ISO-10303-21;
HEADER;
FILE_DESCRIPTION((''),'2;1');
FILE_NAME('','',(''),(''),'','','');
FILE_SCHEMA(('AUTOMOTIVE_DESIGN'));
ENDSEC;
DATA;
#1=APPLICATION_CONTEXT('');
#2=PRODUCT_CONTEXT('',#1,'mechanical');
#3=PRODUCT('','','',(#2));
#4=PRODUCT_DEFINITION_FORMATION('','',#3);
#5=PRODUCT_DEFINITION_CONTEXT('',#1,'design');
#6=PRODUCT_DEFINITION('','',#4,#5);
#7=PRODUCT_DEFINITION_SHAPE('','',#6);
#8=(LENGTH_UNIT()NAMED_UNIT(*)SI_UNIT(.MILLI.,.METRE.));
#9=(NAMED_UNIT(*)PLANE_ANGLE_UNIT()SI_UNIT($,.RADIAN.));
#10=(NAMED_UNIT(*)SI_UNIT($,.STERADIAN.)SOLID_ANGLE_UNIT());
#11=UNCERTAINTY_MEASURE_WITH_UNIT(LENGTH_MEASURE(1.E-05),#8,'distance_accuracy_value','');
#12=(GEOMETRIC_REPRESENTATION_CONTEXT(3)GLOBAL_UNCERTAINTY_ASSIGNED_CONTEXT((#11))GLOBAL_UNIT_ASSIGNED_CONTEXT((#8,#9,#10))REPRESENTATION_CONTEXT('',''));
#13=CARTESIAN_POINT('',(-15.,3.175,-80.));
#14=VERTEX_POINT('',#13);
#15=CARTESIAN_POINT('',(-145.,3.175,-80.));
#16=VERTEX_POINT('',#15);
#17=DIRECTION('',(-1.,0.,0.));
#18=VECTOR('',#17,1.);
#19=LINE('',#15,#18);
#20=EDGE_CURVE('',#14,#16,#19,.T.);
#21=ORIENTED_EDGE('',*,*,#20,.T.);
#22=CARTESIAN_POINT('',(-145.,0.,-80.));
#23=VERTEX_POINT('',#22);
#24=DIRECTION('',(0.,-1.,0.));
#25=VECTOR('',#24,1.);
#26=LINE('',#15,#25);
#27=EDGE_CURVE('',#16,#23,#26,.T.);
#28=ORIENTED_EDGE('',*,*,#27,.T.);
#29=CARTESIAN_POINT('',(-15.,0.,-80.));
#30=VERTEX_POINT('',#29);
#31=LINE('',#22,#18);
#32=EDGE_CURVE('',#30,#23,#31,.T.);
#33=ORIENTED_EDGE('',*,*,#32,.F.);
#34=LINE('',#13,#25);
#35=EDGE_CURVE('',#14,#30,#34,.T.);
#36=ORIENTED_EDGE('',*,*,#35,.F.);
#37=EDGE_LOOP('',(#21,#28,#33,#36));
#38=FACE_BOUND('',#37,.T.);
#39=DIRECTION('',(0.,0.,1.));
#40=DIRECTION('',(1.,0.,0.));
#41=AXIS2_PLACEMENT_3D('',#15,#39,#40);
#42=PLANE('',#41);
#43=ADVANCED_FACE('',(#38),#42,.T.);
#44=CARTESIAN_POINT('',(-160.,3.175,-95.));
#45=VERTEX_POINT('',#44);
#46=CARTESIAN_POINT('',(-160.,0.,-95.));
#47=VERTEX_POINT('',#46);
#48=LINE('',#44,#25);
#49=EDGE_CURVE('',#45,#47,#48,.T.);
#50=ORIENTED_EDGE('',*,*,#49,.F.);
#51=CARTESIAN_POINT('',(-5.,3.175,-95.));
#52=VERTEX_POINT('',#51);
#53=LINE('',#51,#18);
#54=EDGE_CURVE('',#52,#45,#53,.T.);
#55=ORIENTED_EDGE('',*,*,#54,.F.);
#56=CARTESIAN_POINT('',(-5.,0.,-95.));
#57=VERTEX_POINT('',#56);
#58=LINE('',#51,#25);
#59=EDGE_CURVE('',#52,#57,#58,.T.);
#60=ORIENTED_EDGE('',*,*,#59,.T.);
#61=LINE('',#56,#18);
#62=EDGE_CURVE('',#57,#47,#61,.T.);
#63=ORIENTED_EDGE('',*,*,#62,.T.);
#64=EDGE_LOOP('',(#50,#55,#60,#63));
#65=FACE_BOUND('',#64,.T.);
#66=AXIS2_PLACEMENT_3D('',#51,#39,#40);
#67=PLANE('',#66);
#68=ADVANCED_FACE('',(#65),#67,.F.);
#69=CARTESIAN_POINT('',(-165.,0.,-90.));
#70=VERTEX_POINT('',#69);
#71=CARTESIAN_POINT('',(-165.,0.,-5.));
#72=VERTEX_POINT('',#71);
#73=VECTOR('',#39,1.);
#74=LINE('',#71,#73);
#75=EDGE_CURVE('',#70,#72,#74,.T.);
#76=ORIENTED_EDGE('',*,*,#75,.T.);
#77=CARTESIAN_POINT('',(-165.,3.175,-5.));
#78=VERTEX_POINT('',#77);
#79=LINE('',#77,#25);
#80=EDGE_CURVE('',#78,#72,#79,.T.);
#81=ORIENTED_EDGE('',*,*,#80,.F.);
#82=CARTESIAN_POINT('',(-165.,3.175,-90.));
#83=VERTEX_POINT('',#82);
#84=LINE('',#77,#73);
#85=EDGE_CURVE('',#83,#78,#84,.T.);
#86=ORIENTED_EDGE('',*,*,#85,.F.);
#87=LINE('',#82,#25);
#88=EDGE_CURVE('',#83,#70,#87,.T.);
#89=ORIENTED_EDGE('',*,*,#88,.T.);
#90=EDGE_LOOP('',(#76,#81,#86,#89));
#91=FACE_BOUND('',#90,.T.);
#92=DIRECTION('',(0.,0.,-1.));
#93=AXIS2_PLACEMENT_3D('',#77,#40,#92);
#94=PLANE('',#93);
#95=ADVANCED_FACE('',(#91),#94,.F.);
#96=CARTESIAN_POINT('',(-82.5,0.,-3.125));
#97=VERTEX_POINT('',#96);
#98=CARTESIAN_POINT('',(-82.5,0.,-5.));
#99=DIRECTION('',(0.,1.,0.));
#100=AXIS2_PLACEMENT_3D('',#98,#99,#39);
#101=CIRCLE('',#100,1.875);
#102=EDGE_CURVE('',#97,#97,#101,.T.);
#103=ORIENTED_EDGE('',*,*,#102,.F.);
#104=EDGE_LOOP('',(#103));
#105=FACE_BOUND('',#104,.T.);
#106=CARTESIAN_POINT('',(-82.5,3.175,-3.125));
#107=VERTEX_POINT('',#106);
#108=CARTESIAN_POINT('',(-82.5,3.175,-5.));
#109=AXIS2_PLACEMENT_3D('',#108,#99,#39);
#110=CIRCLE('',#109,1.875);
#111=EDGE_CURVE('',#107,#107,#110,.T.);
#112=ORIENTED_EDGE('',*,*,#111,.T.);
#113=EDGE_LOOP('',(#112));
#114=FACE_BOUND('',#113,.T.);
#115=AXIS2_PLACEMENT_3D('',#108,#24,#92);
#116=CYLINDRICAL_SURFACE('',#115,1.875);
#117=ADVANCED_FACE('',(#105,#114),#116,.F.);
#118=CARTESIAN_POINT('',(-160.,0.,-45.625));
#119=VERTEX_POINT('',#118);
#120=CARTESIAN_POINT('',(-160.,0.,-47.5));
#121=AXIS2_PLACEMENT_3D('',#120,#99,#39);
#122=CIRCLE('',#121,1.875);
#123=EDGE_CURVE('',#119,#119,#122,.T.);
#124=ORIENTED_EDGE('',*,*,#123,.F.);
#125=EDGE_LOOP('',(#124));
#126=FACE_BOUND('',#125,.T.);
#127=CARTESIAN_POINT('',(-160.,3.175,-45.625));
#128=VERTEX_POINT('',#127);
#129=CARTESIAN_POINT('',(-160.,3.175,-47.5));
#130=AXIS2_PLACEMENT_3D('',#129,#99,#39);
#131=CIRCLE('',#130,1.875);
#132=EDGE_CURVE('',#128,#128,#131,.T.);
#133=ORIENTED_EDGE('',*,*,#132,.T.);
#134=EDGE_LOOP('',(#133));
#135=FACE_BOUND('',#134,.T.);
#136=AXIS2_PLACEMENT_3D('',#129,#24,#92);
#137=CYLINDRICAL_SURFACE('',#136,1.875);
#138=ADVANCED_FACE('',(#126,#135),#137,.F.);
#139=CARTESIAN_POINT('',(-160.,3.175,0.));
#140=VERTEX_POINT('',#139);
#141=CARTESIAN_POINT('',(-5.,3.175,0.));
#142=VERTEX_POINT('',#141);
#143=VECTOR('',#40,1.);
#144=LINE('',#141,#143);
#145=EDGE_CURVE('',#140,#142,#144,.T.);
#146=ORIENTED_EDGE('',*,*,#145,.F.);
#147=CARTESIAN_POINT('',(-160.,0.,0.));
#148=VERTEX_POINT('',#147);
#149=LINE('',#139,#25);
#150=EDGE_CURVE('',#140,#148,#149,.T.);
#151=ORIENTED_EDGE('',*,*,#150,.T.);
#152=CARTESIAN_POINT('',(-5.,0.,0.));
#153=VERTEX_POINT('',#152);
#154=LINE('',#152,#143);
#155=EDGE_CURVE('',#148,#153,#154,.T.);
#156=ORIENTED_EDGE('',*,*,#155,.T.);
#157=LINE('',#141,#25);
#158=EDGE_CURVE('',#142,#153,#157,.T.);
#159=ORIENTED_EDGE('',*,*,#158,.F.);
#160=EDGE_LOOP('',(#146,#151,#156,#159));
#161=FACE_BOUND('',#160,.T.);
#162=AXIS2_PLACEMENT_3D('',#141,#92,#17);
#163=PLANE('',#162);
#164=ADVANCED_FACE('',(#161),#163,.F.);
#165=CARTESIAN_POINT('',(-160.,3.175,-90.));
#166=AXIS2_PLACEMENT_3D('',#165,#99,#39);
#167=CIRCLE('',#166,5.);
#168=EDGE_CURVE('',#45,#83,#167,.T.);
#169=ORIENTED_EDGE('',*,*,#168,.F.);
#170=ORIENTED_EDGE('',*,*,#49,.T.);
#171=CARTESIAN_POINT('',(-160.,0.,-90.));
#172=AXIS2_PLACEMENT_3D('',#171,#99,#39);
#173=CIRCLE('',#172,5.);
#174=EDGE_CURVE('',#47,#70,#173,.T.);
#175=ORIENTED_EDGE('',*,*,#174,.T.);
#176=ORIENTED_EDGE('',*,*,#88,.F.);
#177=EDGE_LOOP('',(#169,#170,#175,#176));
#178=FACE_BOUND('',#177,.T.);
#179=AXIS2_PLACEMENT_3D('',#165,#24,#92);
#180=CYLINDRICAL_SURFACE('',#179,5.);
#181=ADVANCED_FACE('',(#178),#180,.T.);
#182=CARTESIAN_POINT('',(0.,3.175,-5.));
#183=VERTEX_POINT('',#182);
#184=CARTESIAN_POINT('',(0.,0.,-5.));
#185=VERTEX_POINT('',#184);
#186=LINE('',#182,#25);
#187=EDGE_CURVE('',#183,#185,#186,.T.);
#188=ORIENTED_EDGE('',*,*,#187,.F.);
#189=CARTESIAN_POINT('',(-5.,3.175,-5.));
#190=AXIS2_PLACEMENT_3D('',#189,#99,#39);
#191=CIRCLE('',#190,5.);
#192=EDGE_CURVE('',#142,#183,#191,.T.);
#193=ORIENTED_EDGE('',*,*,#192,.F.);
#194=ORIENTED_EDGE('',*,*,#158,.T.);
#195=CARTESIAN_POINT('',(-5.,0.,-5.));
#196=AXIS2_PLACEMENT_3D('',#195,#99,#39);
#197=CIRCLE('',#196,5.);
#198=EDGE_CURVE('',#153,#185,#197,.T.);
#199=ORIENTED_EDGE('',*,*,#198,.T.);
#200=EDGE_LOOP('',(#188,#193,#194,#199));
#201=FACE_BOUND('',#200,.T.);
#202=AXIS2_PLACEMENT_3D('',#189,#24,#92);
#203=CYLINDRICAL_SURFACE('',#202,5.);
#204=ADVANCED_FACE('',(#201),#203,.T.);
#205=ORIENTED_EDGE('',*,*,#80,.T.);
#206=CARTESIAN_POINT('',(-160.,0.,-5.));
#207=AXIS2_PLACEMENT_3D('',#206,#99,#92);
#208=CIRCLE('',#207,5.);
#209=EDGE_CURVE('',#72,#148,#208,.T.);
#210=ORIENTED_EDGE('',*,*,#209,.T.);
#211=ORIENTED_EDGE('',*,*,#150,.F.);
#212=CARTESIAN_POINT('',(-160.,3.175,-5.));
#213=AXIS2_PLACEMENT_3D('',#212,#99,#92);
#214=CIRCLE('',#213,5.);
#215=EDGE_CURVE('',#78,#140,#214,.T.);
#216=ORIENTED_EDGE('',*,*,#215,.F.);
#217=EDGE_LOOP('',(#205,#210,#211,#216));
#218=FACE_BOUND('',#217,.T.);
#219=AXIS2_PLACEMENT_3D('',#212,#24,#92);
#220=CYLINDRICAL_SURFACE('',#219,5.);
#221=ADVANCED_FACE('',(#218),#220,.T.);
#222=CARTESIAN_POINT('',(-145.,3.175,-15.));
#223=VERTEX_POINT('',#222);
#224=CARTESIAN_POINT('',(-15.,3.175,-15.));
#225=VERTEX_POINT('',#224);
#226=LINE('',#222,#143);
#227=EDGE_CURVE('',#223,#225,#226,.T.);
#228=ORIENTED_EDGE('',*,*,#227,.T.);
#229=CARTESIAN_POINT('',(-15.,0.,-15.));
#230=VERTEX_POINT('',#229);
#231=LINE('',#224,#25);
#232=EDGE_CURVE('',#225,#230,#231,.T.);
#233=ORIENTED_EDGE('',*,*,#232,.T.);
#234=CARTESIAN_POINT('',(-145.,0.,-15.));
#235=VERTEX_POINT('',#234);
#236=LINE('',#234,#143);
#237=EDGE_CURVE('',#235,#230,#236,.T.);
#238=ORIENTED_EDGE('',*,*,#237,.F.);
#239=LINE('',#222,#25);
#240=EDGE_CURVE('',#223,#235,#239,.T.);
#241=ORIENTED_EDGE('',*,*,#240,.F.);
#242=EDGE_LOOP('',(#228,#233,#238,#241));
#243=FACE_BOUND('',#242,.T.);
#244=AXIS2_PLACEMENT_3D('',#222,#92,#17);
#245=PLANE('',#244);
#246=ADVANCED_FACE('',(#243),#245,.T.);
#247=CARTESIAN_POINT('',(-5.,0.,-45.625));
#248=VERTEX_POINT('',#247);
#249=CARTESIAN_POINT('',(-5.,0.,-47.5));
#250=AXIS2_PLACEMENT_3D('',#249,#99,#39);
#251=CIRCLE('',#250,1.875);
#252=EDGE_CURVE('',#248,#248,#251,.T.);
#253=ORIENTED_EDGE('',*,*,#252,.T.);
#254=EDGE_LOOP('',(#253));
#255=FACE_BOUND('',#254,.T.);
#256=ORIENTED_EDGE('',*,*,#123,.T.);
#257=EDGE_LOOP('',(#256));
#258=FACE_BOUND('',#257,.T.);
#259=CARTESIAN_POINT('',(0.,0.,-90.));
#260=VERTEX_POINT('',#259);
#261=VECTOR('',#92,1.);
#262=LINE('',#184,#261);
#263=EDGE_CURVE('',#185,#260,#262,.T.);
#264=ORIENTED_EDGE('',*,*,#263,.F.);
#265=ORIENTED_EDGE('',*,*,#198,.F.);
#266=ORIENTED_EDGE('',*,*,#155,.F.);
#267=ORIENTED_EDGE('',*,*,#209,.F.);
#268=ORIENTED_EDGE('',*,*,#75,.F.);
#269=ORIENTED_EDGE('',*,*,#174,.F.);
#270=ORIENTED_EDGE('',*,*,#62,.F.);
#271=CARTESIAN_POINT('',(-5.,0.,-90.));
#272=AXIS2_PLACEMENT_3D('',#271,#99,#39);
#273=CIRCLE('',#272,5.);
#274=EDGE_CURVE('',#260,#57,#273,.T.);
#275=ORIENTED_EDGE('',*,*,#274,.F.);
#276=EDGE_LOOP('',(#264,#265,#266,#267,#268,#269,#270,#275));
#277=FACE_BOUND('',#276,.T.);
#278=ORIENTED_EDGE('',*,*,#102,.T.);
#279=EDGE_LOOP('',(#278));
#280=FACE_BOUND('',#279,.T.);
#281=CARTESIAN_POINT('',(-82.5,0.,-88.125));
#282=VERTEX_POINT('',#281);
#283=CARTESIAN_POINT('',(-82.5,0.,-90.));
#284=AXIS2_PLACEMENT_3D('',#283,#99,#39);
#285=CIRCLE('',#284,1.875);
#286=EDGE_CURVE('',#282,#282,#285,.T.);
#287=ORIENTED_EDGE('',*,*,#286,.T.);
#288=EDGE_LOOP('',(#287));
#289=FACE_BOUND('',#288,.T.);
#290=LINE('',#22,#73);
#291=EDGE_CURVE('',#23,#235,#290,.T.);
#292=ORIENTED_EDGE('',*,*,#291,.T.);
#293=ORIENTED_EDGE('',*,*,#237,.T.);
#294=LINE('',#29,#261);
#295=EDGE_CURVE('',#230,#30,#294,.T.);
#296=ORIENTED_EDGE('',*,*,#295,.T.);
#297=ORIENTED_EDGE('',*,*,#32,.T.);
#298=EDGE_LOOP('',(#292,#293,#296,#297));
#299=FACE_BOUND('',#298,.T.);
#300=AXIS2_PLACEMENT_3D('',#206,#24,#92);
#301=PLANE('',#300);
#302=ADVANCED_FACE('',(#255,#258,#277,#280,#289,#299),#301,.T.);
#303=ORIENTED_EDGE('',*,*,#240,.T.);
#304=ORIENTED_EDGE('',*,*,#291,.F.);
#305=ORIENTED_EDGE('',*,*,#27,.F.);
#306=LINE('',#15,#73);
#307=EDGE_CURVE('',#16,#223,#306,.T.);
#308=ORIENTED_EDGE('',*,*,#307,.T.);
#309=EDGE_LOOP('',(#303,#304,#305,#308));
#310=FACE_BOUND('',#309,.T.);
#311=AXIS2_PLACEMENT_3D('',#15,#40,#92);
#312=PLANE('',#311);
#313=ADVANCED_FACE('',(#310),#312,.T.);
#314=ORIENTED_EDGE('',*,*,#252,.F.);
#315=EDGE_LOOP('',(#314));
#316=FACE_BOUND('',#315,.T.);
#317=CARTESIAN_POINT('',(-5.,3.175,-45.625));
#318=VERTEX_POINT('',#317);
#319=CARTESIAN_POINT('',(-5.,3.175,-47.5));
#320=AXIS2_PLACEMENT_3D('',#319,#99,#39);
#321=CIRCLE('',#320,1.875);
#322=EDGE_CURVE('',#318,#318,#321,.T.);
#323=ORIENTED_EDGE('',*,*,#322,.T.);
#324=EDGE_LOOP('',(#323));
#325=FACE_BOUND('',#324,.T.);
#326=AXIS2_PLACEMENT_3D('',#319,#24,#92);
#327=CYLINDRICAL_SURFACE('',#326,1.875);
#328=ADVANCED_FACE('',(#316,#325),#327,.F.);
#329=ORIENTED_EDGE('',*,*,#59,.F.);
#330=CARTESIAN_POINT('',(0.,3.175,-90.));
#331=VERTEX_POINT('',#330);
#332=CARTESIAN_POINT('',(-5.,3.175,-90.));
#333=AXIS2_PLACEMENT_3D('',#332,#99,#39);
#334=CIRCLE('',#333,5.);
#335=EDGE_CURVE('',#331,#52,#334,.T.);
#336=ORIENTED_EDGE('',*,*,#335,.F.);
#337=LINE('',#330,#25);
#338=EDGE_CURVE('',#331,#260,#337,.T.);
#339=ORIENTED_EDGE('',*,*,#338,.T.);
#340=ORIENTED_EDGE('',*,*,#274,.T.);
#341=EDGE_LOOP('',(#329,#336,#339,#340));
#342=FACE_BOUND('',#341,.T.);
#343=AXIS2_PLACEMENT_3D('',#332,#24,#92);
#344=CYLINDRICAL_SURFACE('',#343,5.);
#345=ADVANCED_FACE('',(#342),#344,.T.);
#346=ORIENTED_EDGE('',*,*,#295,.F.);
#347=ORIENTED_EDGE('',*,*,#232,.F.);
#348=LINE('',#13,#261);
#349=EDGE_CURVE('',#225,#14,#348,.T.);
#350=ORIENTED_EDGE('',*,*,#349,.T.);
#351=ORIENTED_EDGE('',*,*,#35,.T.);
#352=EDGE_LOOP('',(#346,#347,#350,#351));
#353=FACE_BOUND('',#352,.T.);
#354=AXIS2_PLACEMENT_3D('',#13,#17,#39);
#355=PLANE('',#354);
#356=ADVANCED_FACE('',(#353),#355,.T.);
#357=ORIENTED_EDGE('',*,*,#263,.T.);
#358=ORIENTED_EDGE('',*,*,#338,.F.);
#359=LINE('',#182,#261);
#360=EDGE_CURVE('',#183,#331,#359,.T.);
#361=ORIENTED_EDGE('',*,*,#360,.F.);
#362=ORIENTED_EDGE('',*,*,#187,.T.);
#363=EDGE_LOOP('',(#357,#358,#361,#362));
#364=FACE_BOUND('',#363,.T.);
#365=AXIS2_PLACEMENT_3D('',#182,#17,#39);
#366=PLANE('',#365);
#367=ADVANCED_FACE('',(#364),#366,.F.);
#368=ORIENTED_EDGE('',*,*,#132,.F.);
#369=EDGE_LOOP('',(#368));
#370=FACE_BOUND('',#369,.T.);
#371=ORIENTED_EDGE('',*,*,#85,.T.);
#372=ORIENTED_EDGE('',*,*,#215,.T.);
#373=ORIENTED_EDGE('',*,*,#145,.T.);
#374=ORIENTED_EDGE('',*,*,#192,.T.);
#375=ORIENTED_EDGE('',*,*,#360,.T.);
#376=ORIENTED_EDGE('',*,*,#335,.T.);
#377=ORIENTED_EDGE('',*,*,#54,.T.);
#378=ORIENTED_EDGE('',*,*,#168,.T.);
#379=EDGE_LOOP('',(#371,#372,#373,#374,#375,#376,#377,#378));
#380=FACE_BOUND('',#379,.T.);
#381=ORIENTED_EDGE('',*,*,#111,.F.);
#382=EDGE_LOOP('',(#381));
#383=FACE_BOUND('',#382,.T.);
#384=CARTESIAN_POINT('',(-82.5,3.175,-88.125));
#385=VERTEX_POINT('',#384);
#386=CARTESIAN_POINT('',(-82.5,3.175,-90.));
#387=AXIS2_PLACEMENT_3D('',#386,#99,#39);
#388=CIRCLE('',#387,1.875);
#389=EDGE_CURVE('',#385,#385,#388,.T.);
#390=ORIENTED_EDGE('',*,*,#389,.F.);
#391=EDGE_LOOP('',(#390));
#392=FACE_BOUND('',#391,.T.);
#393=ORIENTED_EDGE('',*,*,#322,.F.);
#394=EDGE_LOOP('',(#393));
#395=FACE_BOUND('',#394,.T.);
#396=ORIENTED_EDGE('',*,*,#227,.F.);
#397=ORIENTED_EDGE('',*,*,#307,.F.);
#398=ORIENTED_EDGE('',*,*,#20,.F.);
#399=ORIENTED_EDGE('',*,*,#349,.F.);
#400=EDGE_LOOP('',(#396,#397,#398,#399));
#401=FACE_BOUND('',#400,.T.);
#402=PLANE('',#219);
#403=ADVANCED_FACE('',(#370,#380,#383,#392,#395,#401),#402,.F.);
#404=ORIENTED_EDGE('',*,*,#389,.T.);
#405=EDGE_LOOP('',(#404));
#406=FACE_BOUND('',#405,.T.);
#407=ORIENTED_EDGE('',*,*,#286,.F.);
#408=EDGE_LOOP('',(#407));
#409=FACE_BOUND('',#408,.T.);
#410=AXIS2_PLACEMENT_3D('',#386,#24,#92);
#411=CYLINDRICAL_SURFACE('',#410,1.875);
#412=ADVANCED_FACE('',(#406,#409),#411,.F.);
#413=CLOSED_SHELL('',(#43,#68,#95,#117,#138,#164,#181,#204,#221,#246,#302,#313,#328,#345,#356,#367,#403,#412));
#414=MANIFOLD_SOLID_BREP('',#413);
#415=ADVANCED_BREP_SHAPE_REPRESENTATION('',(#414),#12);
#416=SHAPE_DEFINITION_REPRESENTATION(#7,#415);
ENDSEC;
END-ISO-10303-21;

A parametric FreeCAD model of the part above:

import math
import FreeCAD as App
import Part
import Sketcher

V = App.Vector

doc = App.newDocument("Part")
body = doc.addObject("PartDesign::Body", "Body")

sketch1 = body.newObject("Sketcher::SketchObject", "Sketch")
sketch1.AttachmentSupport = (doc.getObject("XZ_Plane"), [""])
sketch1.MapMode = "FlatFace"
sketch1.addGeometry([
    Part.LineSegment(V(-160, 0, 0), V(-5, 0, 0)),
    Part.ArcOfCircle(Part.Circle(V(-5, -5, 0), V(0, 0, 1), 5), math.radians(0), math.radians(90)),
    Part.LineSegment(V(0, -5, 0), V(0, -90, 0)),
    Part.ArcOfCircle(Part.Circle(V(-5, -90, 0), V(0, 0, 1), 5), math.radians(-90), math.radians(0)),
    Part.LineSegment(V(-5, -95, 0), V(-160, -95, 0)),
    Part.ArcOfCircle(Part.Circle(V(-160, -90, 0), V(0, 0, 1), 5), math.radians(180), math.radians(270)),
    Part.LineSegment(V(-165, -90, 0), V(-165, -5, 0)),
    Part.ArcOfCircle(Part.Circle(V(-160, -5, 0), V(0, 0, 1), 5), math.radians(90), math.radians(180)),
    Part.Circle(V(-82.5, -5, 0), V(0, 0, 1), 1.9),
    Part.Circle(V(-5, -47.5, 0), V(0, 0, 1), 1.9),
    Part.LineSegment(V(-145, -15, 0), V(-145, -80, 0)),
    Part.LineSegment(V(-145, -80, 0), V(-15, -80, 0)),
    Part.LineSegment(V(-15, -80, 0), V(-15, -15, 0)),
    Part.LineSegment(V(-15, -15, 0), V(-145, -15, 0)),
    Part.Circle(V(-160, -47.5, 0), V(0, 0, 1), 1.9),
    Part.Circle(V(-82.5, -90, 0), V(0, 0, 1), 1.9),
], False)
sketch1.addConstraint([
    Sketcher.Constraint("Tangent", 0, 2, 1, 2),
    Sketcher.Constraint("Tangent", 1, 1, 2, 1),
    Sketcher.Constraint("Tangent", 2, 2, 3, 2),
    Sketcher.Constraint("Tangent", 3, 1, 4, 1),
    Sketcher.Constraint("Tangent", 4, 2, 5, 2),
    Sketcher.Constraint("Tangent", 5, 1, 6, 1),
    Sketcher.Constraint("Tangent", 6, 2, 7, 2),
    Sketcher.Constraint("Tangent", 7, 1, 0, 1),
    Sketcher.Constraint("Coincident", 10, 2, 11, 1),
    Sketcher.Constraint("Coincident", 11, 2, 12, 1),
    Sketcher.Constraint("Coincident", 12, 2, 13, 1),
    Sketcher.Constraint("Coincident", 13, 2, 10, 1),
    Sketcher.Constraint("Horizontal", 0),
    Sketcher.Constraint("Vertical", 2),
    Sketcher.Constraint("Horizontal", 4),
    Sketcher.Constraint("Vertical", 6),
    Sketcher.Constraint("Vertical", 10),
    Sketcher.Constraint("Horizontal", 11),
    Sketcher.Constraint("Vertical", 12),
    Sketcher.Constraint("Horizontal", 13),
    Sketcher.Constraint("Equal", 1, 3),
    Sketcher.Constraint("Equal", 3, 5),
    Sketcher.Constraint("Equal", 5, 7),
    Sketcher.Constraint("Equal", 8, 9),
    Sketcher.Constraint("Equal", 9, 14),
    Sketcher.Constraint("Equal", 14, 15),
    Sketcher.Constraint("PointOnObject", 0, 2, -1),
    Sketcher.Constraint("PointOnObject", 1, 1, -2),
    Sketcher.Constraint("Horizontal", 7, 3, 8, 3),
    Sketcher.Constraint("Horizontal", 9, 3, 14, 3),
    Sketcher.Constraint("Horizontal", 5, 3, 15, 3),
    Sketcher.Constraint("Vertical", 3, 3, 9, 3),
    Sketcher.Constraint("Vertical", 7, 3, 14, 3),
    Sketcher.Constraint("Vertical", 8, 3, 15, 3),
    Sketcher.Constraint("Radius", 1, 5.0),
    Sketcher.Constraint("Diameter", 8, 3.75),
    Sketcher.Constraint("DistanceX", 0, 1, 0, 2, 155.0),
    Sketcher.Constraint("DistanceX", 11, 1, 11, 2, 130.0),
    Sketcher.Constraint("DistanceY", 2, 2, 2, 1, 85.0),
    Sketcher.Constraint("DistanceY", 10, 2, 10, 1, 65.0),
    Sketcher.Constraint("DistanceX", 10, 2, -1, 1, 145.0),
    Sketcher.Constraint("DistanceY", 10, 2, -1, 1, 80.0),
    Sketcher.Constraint("DistanceX", 8, 3, -1, 1, 82.5),
    Sketcher.Constraint("DistanceY", 9, 3, -1, 1, 47.5),
])
pad1 = body.newObject("PartDesign::Pad", "Pad")
pad1.Profile = sketch1
pad1.Length = 3.175
pad1.Reversed = True

doc.recompute()
